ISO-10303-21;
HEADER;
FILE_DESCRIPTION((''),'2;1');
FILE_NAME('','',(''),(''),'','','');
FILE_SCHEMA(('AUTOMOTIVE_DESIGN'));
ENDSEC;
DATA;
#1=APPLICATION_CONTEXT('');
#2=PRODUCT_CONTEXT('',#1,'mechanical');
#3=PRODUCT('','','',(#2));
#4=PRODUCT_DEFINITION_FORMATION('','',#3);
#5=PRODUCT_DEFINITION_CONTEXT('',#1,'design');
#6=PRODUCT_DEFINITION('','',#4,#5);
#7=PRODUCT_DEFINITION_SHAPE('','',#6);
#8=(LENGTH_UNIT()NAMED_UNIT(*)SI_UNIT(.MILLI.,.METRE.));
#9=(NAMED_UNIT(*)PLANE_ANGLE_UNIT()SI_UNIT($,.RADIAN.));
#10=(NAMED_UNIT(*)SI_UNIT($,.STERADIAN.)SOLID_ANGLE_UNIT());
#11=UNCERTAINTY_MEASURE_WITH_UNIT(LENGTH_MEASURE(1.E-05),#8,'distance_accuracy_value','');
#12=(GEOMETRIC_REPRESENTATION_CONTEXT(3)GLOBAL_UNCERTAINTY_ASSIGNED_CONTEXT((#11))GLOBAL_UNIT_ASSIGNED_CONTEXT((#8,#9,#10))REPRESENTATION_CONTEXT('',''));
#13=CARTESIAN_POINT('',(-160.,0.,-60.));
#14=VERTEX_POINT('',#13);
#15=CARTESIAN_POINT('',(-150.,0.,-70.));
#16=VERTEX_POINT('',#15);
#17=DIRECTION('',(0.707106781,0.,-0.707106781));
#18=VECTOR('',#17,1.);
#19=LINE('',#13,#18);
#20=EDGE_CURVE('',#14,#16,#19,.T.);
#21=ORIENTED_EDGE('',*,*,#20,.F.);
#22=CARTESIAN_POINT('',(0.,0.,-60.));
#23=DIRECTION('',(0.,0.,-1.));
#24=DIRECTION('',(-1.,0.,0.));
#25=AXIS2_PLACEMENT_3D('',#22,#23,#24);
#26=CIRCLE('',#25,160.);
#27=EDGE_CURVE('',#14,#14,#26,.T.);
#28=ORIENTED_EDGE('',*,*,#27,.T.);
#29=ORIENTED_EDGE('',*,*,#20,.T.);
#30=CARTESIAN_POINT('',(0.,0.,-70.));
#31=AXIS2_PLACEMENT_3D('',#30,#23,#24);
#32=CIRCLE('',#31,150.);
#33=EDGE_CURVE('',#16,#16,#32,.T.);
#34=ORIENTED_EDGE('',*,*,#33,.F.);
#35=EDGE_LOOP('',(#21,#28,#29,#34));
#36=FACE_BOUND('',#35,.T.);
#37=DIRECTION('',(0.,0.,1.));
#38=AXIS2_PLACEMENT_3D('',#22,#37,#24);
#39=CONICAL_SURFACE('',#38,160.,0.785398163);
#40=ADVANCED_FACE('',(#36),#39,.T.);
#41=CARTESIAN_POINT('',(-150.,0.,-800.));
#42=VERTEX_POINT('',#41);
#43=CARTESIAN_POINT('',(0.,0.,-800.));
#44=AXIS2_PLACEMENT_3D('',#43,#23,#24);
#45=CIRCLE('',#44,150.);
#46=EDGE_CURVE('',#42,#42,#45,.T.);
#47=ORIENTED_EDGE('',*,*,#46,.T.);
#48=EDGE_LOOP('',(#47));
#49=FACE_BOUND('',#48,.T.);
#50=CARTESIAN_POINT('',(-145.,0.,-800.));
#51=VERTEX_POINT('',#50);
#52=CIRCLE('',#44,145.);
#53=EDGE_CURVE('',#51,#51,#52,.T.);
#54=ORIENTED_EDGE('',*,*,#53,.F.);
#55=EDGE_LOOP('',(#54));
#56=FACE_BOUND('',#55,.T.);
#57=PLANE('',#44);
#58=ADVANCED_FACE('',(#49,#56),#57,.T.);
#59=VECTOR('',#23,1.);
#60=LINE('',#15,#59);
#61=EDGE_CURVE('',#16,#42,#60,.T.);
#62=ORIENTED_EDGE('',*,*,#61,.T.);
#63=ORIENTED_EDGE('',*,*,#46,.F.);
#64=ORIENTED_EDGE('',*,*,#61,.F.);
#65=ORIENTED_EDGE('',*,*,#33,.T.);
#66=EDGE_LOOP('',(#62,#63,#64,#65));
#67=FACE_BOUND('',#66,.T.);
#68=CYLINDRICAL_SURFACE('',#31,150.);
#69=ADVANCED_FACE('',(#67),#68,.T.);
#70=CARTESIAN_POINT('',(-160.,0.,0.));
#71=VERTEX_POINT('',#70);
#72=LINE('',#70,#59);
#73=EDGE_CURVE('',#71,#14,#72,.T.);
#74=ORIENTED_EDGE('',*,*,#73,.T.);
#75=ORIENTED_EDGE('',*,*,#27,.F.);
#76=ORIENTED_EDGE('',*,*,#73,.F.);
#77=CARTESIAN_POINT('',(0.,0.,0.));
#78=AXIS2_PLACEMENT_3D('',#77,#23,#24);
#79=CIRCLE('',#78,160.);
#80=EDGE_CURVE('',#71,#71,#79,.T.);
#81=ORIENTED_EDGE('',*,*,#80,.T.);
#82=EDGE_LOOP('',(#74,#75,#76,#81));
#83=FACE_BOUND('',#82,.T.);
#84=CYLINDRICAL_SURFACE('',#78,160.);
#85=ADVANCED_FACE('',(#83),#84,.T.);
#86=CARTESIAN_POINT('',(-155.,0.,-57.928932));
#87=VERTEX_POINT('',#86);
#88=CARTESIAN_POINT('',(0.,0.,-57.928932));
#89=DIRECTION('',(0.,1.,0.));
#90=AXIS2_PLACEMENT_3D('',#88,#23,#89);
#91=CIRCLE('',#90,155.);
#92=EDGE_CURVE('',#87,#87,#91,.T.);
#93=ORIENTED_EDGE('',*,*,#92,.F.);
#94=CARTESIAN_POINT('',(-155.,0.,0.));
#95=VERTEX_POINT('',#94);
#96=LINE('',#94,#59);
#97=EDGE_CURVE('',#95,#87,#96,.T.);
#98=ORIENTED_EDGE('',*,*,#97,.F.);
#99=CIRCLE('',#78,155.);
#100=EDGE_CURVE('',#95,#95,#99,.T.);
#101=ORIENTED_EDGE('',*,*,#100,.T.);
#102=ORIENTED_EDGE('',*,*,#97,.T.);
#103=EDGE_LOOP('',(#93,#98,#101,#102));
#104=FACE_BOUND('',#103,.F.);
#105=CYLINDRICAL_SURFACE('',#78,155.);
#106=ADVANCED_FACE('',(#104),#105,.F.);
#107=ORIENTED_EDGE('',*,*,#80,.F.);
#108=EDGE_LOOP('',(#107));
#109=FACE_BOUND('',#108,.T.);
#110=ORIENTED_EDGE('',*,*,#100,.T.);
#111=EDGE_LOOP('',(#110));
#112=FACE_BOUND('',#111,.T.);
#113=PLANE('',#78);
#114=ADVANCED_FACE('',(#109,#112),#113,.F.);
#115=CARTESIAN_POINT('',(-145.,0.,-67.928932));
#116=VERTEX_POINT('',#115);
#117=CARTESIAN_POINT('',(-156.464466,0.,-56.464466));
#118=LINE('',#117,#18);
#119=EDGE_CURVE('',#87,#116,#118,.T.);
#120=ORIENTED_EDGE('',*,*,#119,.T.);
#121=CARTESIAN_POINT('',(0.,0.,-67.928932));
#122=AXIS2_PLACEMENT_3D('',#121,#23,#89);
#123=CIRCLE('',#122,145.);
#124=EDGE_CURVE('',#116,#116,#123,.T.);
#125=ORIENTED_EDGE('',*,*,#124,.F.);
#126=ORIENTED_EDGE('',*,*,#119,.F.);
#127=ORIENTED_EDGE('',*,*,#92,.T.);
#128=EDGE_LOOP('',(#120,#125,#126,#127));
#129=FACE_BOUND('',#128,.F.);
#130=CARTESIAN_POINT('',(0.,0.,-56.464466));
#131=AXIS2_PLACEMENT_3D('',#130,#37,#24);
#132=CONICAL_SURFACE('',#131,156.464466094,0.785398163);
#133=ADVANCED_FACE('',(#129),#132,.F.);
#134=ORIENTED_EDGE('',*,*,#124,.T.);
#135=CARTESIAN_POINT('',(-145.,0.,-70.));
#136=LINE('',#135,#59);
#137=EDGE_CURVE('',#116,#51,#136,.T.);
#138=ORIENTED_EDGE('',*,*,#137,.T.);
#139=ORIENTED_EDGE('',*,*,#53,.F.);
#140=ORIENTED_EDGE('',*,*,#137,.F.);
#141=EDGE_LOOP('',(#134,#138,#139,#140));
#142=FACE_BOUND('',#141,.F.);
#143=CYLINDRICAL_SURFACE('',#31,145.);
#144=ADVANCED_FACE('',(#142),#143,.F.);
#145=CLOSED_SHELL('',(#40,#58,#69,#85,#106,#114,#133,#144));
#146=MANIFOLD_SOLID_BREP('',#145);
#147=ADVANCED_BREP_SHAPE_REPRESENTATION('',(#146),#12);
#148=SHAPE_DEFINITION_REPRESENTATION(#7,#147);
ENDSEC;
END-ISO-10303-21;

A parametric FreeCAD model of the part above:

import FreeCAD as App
import Part
import Sketcher

V = App.Vector
Q = App.Units.Quantity


def faces_at(feature, points):
    """Names of the faces that lie closest to the given points."""
    faces = feature.Shape.Faces
    near = lambda p: min(range(len(faces)), key=lambda i: faces[i].distToShape(Part.Vertex(*p))[0])
    return sorted({f"Face{near(p) + 1}" for p in points})

doc = App.newDocument("Part")
body = doc.addObject("PartDesign::Body", "Body")

# Sketch on XZ plane
sketch1 = doc.addObject("Sketcher::SketchObject", "Sketch")
body.addObject(sketch1)
sketch1.AttachmentSupport = (doc.XZ_Plane, [""])
sketch1.MapMode = "FlatFace"
sketch1.addGeometry([
    Part.LineSegment(V(0, 0, 0), V(-160, 0, 0)),  # 0
    Part.LineSegment(V(-160, 0, 0), V(-160, -60, 0)),  # 1
    Part.LineSegment(V(-160, -60, 0), V(-150, -70, 0)),  # 2
    Part.LineSegment(V(-150, -70, 0), V(-150, -800, 0)),  # 3
    Part.LineSegment(V(-150, -800, 0), V(0, -800, 0)),  # 4
    Part.LineSegment(V(0, -800, 0), V(0, 0, 0)),  # 5
], False)
sketch1.addConstraint([
    Sketcher.Constraint("Coincident", 0, 2, 1, 1),
    Sketcher.Constraint("Coincident", 1, 2, 2, 1),
    Sketcher.Constraint("Coincident", 2, 2, 3, 1),
    Sketcher.Constraint("Coincident", 3, 2, 4, 1),
    Sketcher.Constraint("Coincident", 4, 2, 5, 1),
    Sketcher.Constraint("Coincident", 5, 2, 0, 1),
    Sketcher.Constraint("Horizontal", 0),
    Sketcher.Constraint("Vertical", 1),
    Sketcher.Constraint("Vertical", 3),
    Sketcher.Constraint("Horizontal", 4),
    Sketcher.Constraint("Vertical", 5),
    Sketcher.Constraint("Coincident", 5, 2, -1, 1),
    Sketcher.Constraint("DistanceX", 0, 2, 0, 1, Q("160 mm")),
    Sketcher.Constraint("DistanceX", 4, 1, 4, 2, Q("150 mm")),
    Sketcher.Constraint("DistanceY", 1, 2, 1, 1, Q("60 mm")),
    Sketcher.Constraint("DistanceY", 3, 2, 3, 1, Q("730 mm")),
    Sketcher.Constraint("DistanceY", 5, 1, 5, 2, Q("800 mm")),
])
revolution = doc.addObject("PartDesign::Revolution", "Revolution")
body.addObject(revolution)
revolution.Profile = sketch1
revolution.ReferenceAxis = (sketch1, ["V_Axis"])
revolution.Angle = 360
doc.recompute()

thickness = doc.addObject("PartDesign::Thickness", "Thickness")
body.addObject(thickness)
thickness.Base = (revolution, faces_at(revolution, [(0, 0, 0), (0, 0, -800)]))
thickness.Value = 5
thickness.Reversed = True
thickness.Join = "Intersection"

doc.recompute()
